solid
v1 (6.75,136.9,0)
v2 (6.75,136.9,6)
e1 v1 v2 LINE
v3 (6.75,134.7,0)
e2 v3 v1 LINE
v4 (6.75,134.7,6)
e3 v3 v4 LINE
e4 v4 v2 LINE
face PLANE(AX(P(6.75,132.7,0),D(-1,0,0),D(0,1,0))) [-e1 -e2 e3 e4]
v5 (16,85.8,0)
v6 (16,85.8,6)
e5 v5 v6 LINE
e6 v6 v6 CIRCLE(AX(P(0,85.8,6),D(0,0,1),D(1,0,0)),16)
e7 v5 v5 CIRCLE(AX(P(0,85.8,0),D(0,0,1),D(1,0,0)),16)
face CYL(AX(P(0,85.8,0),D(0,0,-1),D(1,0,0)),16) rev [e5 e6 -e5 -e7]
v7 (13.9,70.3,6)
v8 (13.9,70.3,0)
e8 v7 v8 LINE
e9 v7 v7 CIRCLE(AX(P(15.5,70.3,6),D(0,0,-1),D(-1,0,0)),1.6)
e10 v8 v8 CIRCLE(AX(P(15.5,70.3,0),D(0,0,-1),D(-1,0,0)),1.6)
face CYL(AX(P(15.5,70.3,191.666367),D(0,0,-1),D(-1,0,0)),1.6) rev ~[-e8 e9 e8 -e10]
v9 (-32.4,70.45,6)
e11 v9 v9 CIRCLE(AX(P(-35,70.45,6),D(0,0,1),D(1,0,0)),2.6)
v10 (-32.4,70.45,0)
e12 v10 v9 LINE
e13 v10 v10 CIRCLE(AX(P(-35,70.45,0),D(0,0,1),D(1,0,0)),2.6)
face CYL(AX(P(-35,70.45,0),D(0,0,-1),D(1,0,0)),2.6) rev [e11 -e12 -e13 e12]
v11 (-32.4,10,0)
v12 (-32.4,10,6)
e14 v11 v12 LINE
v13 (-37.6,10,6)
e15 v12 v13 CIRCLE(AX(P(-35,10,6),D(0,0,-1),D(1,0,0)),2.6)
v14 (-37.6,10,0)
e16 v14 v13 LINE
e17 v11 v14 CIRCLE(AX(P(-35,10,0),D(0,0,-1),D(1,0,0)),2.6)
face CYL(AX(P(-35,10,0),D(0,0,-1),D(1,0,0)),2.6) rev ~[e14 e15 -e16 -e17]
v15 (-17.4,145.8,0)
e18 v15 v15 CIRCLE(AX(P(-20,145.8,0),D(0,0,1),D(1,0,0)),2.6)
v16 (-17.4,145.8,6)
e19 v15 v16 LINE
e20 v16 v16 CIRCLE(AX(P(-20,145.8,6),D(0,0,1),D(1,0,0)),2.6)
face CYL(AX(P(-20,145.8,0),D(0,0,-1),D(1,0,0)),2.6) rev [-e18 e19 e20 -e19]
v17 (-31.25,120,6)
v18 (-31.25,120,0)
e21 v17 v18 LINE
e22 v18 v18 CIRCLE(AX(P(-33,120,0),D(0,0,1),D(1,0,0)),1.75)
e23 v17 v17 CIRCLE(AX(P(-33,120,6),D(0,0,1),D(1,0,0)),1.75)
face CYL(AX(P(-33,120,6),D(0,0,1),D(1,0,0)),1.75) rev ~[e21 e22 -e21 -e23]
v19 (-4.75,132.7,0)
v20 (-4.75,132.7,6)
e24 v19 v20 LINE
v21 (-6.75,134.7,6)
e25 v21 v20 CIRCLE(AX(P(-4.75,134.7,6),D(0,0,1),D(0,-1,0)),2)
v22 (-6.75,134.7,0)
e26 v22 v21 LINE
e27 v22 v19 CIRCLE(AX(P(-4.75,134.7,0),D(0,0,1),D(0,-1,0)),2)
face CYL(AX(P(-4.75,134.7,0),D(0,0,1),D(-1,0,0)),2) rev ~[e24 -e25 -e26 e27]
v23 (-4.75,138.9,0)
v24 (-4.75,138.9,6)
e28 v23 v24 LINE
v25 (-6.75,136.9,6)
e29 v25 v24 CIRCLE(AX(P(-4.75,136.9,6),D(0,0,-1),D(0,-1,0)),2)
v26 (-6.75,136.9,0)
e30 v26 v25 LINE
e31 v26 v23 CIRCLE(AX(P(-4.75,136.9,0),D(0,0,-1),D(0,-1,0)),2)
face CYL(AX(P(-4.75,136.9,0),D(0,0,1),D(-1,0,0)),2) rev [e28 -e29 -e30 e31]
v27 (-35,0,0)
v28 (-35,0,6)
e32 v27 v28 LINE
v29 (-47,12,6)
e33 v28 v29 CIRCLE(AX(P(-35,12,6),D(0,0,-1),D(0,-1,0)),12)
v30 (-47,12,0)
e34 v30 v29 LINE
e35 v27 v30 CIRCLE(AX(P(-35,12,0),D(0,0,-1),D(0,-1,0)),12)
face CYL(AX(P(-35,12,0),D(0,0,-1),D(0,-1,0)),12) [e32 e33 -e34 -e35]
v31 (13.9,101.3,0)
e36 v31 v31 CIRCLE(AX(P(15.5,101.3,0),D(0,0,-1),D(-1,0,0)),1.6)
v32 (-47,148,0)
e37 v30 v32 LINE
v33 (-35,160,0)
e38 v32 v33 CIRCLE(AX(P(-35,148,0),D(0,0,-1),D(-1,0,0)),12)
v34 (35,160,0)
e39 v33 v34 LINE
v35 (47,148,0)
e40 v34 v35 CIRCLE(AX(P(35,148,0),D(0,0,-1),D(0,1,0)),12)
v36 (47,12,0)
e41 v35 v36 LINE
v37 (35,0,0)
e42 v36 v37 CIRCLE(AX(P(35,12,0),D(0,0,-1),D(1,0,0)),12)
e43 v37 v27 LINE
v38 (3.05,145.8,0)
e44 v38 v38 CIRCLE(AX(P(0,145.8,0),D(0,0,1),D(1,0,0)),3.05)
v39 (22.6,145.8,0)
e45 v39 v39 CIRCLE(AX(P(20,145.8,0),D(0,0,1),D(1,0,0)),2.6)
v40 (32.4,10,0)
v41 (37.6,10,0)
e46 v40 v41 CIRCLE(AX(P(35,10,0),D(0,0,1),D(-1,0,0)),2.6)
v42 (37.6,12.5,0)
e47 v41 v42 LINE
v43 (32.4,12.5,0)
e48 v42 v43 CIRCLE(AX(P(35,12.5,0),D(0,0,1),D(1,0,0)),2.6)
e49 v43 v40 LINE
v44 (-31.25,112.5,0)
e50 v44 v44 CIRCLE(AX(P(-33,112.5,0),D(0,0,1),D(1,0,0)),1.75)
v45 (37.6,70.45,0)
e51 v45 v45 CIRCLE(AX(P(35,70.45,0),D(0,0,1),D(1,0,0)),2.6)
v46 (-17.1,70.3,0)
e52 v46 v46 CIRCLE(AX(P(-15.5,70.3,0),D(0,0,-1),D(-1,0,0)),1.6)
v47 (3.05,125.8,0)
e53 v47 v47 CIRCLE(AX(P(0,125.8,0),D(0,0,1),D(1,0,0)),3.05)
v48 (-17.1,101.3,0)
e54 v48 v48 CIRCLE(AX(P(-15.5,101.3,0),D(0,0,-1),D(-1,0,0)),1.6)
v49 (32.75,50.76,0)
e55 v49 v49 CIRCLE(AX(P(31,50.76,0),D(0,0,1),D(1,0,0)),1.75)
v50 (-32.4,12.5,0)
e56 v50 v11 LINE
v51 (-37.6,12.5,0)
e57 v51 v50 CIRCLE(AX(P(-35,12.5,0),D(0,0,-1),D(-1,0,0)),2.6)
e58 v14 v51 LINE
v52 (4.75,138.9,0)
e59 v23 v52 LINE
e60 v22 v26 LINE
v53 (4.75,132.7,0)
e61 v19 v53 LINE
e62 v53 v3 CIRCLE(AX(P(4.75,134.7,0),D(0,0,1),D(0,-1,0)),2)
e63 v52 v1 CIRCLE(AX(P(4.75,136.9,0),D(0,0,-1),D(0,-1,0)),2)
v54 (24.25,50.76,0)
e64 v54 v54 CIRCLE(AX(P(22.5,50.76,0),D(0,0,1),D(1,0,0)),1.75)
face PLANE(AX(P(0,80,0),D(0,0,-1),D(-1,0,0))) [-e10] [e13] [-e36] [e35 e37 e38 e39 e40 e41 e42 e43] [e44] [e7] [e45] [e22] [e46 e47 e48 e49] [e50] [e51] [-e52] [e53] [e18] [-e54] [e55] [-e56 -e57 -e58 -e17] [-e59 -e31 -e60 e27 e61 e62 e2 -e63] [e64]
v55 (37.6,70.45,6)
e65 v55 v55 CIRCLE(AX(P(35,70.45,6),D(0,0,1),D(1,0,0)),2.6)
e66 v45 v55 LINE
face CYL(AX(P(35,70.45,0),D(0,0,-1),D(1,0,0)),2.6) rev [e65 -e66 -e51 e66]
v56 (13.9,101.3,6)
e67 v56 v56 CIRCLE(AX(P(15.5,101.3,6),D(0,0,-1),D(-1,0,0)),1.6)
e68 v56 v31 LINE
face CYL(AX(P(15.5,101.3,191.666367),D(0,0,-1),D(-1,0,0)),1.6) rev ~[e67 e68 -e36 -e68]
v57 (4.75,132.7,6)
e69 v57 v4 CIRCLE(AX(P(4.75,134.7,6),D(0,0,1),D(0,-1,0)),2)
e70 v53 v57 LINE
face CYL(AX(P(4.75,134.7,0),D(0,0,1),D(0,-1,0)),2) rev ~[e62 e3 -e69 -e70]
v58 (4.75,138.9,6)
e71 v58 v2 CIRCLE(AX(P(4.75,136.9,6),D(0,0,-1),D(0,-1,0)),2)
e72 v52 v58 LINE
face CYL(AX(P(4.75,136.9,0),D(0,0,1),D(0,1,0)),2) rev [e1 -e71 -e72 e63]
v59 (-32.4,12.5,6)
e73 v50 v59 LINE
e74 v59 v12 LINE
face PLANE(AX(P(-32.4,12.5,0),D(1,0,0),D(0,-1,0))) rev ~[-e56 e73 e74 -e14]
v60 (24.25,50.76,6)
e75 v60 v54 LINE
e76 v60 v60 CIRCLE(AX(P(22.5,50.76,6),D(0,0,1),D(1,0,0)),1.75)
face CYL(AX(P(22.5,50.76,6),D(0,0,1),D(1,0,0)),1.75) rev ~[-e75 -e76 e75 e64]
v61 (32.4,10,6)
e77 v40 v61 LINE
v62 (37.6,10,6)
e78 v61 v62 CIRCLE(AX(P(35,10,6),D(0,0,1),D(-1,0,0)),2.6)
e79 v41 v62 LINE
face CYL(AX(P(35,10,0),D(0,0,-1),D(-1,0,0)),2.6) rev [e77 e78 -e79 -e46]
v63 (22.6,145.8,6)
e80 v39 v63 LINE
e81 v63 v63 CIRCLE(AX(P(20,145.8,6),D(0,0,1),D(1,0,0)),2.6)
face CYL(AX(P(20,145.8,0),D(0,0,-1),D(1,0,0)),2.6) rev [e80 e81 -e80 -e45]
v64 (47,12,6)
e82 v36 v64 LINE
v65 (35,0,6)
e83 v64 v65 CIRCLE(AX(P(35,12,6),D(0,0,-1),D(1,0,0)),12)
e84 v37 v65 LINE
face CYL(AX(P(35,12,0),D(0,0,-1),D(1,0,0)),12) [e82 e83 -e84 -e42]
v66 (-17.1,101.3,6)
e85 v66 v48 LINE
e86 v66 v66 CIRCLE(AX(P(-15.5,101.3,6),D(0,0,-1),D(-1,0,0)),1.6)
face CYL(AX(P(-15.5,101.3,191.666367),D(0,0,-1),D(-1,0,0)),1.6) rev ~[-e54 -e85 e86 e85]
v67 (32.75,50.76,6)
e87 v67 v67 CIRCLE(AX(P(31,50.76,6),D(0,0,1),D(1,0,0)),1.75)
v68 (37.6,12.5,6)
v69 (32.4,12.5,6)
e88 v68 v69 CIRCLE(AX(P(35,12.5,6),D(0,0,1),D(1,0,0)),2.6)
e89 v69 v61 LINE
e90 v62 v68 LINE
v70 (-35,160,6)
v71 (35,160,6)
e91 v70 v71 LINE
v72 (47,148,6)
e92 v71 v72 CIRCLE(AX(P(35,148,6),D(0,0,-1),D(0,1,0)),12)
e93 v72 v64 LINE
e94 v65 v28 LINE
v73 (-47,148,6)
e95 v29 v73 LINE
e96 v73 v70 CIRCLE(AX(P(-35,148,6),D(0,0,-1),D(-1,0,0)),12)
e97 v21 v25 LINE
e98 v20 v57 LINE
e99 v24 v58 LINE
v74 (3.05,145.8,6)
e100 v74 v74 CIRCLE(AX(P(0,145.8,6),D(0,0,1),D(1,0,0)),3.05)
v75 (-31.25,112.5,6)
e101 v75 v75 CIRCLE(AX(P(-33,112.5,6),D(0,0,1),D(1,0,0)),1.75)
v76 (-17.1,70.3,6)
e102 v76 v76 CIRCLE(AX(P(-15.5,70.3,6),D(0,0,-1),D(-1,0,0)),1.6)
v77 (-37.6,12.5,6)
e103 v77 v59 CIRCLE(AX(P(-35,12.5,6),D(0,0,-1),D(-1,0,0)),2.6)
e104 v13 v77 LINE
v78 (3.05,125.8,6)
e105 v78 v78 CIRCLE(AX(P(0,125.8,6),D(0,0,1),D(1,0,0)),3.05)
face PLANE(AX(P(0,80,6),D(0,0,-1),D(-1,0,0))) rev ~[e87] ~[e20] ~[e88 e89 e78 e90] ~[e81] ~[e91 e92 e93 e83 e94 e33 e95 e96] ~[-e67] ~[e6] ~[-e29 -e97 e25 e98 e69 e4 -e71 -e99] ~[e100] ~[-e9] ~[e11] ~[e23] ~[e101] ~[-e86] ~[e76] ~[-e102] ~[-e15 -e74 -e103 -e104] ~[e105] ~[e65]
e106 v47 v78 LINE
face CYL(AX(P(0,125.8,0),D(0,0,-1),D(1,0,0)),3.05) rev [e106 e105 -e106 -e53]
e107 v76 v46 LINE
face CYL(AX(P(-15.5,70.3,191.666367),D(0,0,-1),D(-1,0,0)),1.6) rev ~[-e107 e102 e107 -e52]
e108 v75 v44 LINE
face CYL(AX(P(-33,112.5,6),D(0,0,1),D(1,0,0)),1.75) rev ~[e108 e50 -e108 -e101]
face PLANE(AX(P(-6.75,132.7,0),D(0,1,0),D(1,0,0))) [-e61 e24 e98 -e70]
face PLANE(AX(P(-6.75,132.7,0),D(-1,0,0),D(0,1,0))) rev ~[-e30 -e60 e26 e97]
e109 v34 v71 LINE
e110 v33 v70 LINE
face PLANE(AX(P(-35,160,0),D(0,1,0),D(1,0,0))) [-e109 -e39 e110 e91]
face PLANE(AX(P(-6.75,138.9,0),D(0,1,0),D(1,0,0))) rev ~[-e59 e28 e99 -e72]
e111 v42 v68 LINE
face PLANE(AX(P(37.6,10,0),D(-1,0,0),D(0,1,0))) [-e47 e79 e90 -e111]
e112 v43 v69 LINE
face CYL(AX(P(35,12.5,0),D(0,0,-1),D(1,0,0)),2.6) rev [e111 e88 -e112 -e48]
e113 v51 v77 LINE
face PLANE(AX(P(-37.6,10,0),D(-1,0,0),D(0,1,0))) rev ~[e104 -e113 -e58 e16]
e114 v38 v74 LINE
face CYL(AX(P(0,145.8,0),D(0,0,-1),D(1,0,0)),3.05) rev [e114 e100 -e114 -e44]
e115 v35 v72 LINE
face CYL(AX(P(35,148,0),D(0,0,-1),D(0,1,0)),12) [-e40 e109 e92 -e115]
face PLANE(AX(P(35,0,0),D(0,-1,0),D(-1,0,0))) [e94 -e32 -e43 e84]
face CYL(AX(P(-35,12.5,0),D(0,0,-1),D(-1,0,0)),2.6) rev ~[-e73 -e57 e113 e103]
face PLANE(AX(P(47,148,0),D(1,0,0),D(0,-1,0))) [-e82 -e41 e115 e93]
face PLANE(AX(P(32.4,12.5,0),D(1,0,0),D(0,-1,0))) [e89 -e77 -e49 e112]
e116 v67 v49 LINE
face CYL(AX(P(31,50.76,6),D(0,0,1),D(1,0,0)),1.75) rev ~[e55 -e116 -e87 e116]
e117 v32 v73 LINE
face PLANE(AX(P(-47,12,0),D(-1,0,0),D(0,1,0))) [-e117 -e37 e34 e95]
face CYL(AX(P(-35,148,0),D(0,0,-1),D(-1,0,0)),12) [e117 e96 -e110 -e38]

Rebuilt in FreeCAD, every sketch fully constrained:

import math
import FreeCAD as App
import Part
import Sketcher

V = App.Vector
Q = App.Units.Quantity


def edges_at(feature, points):
    """Names of the edges that pass closest to the given points."""
    edges = feature.Shape.Edges
    near = lambda p: min(range(len(edges)), key=lambda i: edges[i].distToShape(Part.Vertex(*p))[0])
    return sorted({f"Edge{near(p) + 1}" for p in points})


def add_polygon(sketch, points):
    """Adds a closed chain of lines whose ends are joined by coincident constraints."""
    first, n = sketch.GeometryCount, len(points)
    for a, b in zip(points, points[1:] + points[:1]):
        sketch.addGeometry(Part.LineSegment(App.Vector(*a, 0), App.Vector(*b, 0)), False)
    for i in range(n):
        sketch.addConstraint(Sketcher.Constraint("Coincident", first + i, 2, first + (i + 1) % n, 1))

doc = App.newDocument("Part")
body = doc.addObject("PartDesign::Body", "Body")

sketch1 = doc.addObject("Sketcher::SketchObject", "Sketch")
body.addObject(sketch1)
sketch1.AttachmentSupport = (doc.XY_Plane, [""])
sketch1.MapMode = "FlatFace"
sketch1.addGeometry(Part.LineSegment(V(35, 160, 0), V(-35, 160, 0)), False)
sketch1.addGeometry(Part.ArcOfCircle(Part.Circle(V(-35, 148, 0), V(0, 0, 1), 12), math.radians(90), math.radians(180)), False)
sketch1.addGeometry(Part.LineSegment(V(-47, 148, 0), V(-47, 12, 0)), False)
sketch1.addGeometry(Part.ArcOfCircle(Part.Circle(V(-35, 12, 0), V(0, 0, 1), 12), math.radians(-180), math.radians(-90)), False)
sketch1.addGeometry(Part.LineSegment(V(-35, 0, 0), V(35, 0, 0)), False)
sketch1.addGeometry(Part.ArcOfCircle(Part.Circle(V(35, 12, 0), V(0, 0, 1), 12), math.radians(-90), math.radians(0)), False)
sketch1.addGeometry(Part.LineSegment(V(47, 12, 0), V(47, 148, 0)), False)
sketch1.addGeometry(Part.ArcOfCircle(Part.Circle(V(35, 148, 0), V(0, 0, 1), 12), math.radians(0), math.radians(90)), False)
sketch1.addGeometry(Part.ArcOfCircle(Part.Circle(V(35, 12.5, 0), V(0, 0, 1), 2.6), math.radians(0), math.radians(180)), False)
sketch1.addGeometry(Part.LineSegment(V(37.6, 12.5, 0), V(37.6, 10, 0)), False)
sketch1.addGeometry(Part.ArcOfCircle(Part.Circle(V(35, 10, 0), V(0, 0, 1), 2.6), math.radians(180), math.radians(360)), False)
sketch1.addGeometry(Part.LineSegment(V(32.4, 10, 0), V(32.4, 12.5, 0)), False)
sketch1.addGeometry(Part.Circle(V(35, 70.5, 0), V(0, 0, 1), 2.6), False)
sketch1.addGeometry(Part.LineSegment(V(-32.4, 12.5, 0), V(-32.4, 10, 0)), False)
sketch1.addGeometry(Part.ArcOfCircle(Part.Circle(V(-35, 10, 0), V(0, 0, 1), 2.6), math.radians(180), math.radians(360)), False)
sketch1.addGeometry(Part.LineSegment(V(-37.6, 10, 0), V(-37.6, 12.5, 0)), False)
sketch1.addGeometry(Part.ArcOfCircle(Part.Circle(V(-35, 12.5, 0), V(0, 0, 1), 2.6), math.radians(0), math.radians(180)), False)
sketch1.addGeometry(Part.Circle(V(-35, 70.5, 0), V(0, 0, 1), 2.6), False)
sketch1.addGeometry(Part.Circle(V(20, 145.8, 0), V(0, 0, 1), 2.6), False)
sketch1.addGeometry(Part.Circle(V(0, 85.8, 0), V(0, 0, 1), 16), False)
sketch1.addGeometry(Part.Circle(V(0, 125.8, 0), V(0, 0, 1), 3), False)
add_polygon(sketch1, [(-6.8, 132.7), (-6.8, 138.9), (6.8, 138.9), (6.8, 132.7)])
sketch1.addGeometry(Part.Circle(V(0, 145.8, 0), V(0, 0, 1), 3), False)
sketch1.addGeometry(Part.Circle(V(-20, 145.8, 0), V(0, 0, 1), 2.6), False)
sketch1.addConstraint(Sketcher.Constraint("Tangent", 0, 2, 1, 1))
sketch1.addConstraint(Sketcher.Constraint("Tangent", 1, 2, 2, 1))
sketch1.addConstraint(Sketcher.Constraint("Tangent", 2, 2, 3, 1))
sketch1.addConstraint(Sketcher.Constraint("Tangent", 3, 2, 4, 1))
sketch1.addConstraint(Sketcher.Constraint("Tangent", 4, 2, 5, 1))
sketch1.addConstraint(Sketcher.Constraint("Tangent", 5, 2, 6, 1))
sketch1.addConstraint(Sketcher.Constraint("Tangent", 6, 2, 7, 1))
sketch1.addConstraint(Sketcher.Constraint("Tangent", 7, 2, 0, 1))
sketch1.addConstraint(Sketcher.Constraint("Tangent", 8, 1, 9, 1))
sketch1.addConstraint(Sketcher.Constraint("Tangent", 9, 2, 10, 2))
sketch1.addConstraint(Sketcher.Constraint("Tangent", 10, 1, 11, 1))
sketch1.addConstraint(Sketcher.Constraint("Tangent", 11, 2, 8, 2))
sketch1.addConstraint(Sketcher.Constraint("Tangent", 13, 2, 14, 2))
sketch1.addConstraint(Sketcher.Constraint("Tangent", 14, 1, 15, 1))
sketch1.addConstraint(Sketcher.Constraint("Tangent", 15, 2, 16, 2))
sketch1.addConstraint(Sketcher.Constraint("Tangent", 16, 1, 13, 1))
sketch1.addConstraint(Sketcher.Constraint("Horizontal", 0))
sketch1.addConstraint(Sketcher.Constraint("Vertical", 2))
sketch1.addConstraint(Sketcher.Constraint("Horizontal", 4))
sketch1.addConstraint(Sketcher.Constraint("Vertical", 6))
sketch1.addConstraint(Sketcher.Constraint("Vertical", 9))
sketch1.addConstraint(Sketcher.Constraint("Vertical", 11))
sketch1.addConstraint(Sketcher.Constraint("Vertical", 13))
sketch1.addConstraint(Sketcher.Constraint("Vertical", 15))
sketch1.addConstraint(Sketcher.Constraint("Vertical", 21))
sketch1.addConstraint(Sketcher.Constraint("Horizontal", 22))
sketch1.addConstraint(Sketcher.Constraint("Vertical", 23))
sketch1.addConstraint(Sketcher.Constraint("Horizontal", 24))
sketch1.addConstraint(Sketcher.Constraint("Equal", 1, 3))
sketch1.addConstraint(Sketcher.Constraint("Equal", 3, 5))
sketch1.addConstraint(Sketcher.Constraint("Equal", 5, 7))
sketch1.addConstraint(Sketcher.Constraint("Equal", 10, 12))
sketch1.addConstraint(Sketcher.Constraint("Equal", 12, 14))
sketch1.addConstraint(Sketcher.Constraint("Equal", 16, 17))
sketch1.addConstraint(Sketcher.Constraint("Equal", 17, 18))
sketch1.addConstraint(Sketcher.Constraint("Equal", 20, 25))
sketch1.addConstraint(Sketcher.Constraint("Equal", 18, 26))
sketch1.addConstraint(Sketcher.Constraint("Symmetric", 3, 2, 4, 2, -1, 1))
sketch1.addConstraint(Sketcher.Constraint("Symmetric", 10, 3, 14, 3, -2))
sketch1.addConstraint(Sketcher.Constraint("Symmetric", 12, 3, 17, 3, -2))
sketch1.addConstraint(Sketcher.Constraint("Symmetric", 18, 3, 26, 3, -2))
sketch1.addConstraint(Sketcher.Constraint("PointOnObject", 19, 3, -2))
sketch1.addConstraint(Sketcher.Constraint("PointOnObject", 20, 3, -2))
sketch1.addConstraint(Sketcher.Constraint("PointOnObject", 25, 3, -2))
sketch1.addConstraint(Sketcher.Constraint("Horizontal", 8, 3, 16, 3))
sketch1.addConstraint(Sketcher.Constraint("Horizontal", 18, 3, 25, 3))
sketch1.addConstraint(Sketcher.Constraint("Vertical", 7, 3, 8, 3))
sketch1.addConstraint(Sketcher.Constraint("Vertical", 10, 3, 12, 3))
sketch1.addConstraint(Sketcher.Constraint("Diameter", 19, Q("32 mm")))
sketch1.addConstraint(Sketcher.Constraint("Radius", 1, Q("12 mm")))
sketch1.addConstraint(Sketcher.Constraint("Diameter", 12, Q("5.2 mm")))
sketch1.addConstraint(Sketcher.Constraint("Diameter", 20, Q("6.1 mm")))
sketch1.addConstraint(Sketcher.Constraint("DistanceX", 0, 2, 0, 1, Q("70 mm")))
sketch1.addConstraint(Sketcher.Constraint("DistanceY", 2, 2, 2, 1, Q("136 mm")))
sketch1.addConstraint(Sketcher.Constraint("DistanceX", 22, 1, 22, 2, Q("13.5 mm")))
sketch1.addConstraint(Sketcher.Constraint("DistanceY", 9, 2, 9, 1, Q("2.5 mm")))
sketch1.addConstraint(Sketcher.Constraint("DistanceY", 21, 1, 21, 2, Q("6.2 mm")))
sketch1.addConstraint(Sketcher.Constraint("DistanceY", -1, 1, 10, 3, Q("10 mm")))
sketch1.addConstraint(Sketcher.Constraint("DistanceX", -1, 1, 18, 3, Q("20 mm")))
sketch1.addConstraint(Sketcher.Constraint("DistanceY", 19, 3, 18, 3, Q("60 mm")))
sketch1.addConstraint(Sketcher.Constraint("DistanceY", 20, 3, 18, 3, Q("20 mm")))
sketch1.addConstraint(Sketcher.Constraint("DistanceY", -1, 1, 18, 3, Q("145.8 mm")))
sketch1.addConstraint(Sketcher.Constraint("DistanceY", -1, 1, 21, 2, Q("138.9 mm")))
sketch1.addConstraint(Sketcher.Constraint("DistanceY", -1, 1, 12, 3, Q("70.45 mm")))
sketch1.addConstraint(Sketcher.Constraint("DistanceX", 21, 2, -1, 1, Q("6.75 mm")))
pad1 = doc.addObject("PartDesign::Pad", "Pad")
body.addObject(pad1)
pad1.Profile = sketch1
pad1.Length = 6

sketch2 = doc.addObject("Sketcher::SketchObject", "Sketch001")
body.addObject(sketch2)
sketch2.AttachmentSupport = (doc.XY_Plane, [""])
sketch2.MapMode = "FlatFace"
sketch2.AttachmentOffset = App.Placement(V(0, 0, 6), App.Rotation())
sketch2.addGeometry(Part.Circle(V(-33, 120, 0), V(0, 0, 1), 1.8), False)
sketch2.addGeometry(Part.Circle(V(-33, 112.5, 0), V(0, 0, 1), 1.8), False)
sketch2.addConstraint(Sketcher.Constraint("Equal", 0, 1))
sketch2.addConstraint(Sketcher.Constraint("Vertical", 0, 3, 1, 3))
sketch2.addConstraint(Sketcher.Constraint("Diameter", 0, Q("3.5 mm")))
sketch2.addConstraint(Sketcher.Constraint("DistanceX", 0, 3, -1, 1, Q("33 mm")))
sketch2.addConstraint(Sketcher.Constraint("DistanceY", -1, 1, 0, 3, Q("120 mm")))
sketch2.addConstraint(Sketcher.Constraint("DistanceY", -1, 1, 1, 3, Q("112.5 mm")))
pocket1 = doc.addObject("PartDesign::Pocket", "Pocket")
body.addObject(pocket1)
pocket1.Profile = sketch2
pocket1.Type = "ThroughAll"

sketch3 = doc.addObject("Sketcher::SketchObject", "Sketch002")
body.addObject(sketch3)
sketch3.AttachmentSupport = (doc.XY_Plane, [""])
sketch3.MapMode = "FlatFace"
sketch3.AttachmentOffset = App.Placement(V(0, 0, 6), App.Rotation())
sketch3.addGeometry(Part.Circle(V(22.5, 50.8, 0), V(0, 0, 1), 1.8), False)
sketch3.addGeometry(Part.Circle(V(31, 50.8, 0), V(0, 0, 1), 1.8), False)
sketch3.addConstraint(Sketcher.Constraint("Equal", 0, 1))
sketch3.addConstraint(Sketcher.Constraint("Horizontal", 0, 3, 1, 3))
sketch3.addConstraint(Sketcher.Constraint("Diameter", 0, Q("3.5 mm")))
sketch3.addConstraint(Sketcher.Constraint("DistanceX", -1, 1, 1, 3, Q("31 mm")))
sketch3.addConstraint(Sketcher.Constraint("DistanceX", -1, 1, 0, 3, Q("22.5 mm")))
sketch3.addConstraint(Sketcher.Constraint("DistanceY", -1, 1, 0, 3, Q("50.76 mm")))
pocket2 = doc.addObject("PartDesign::Pocket", "Pocket001")
body.addObject(pocket2)
pocket2.Profile = sketch3
pocket2.Length = 10
doc.recompute()

fillet = doc.addObject("PartDesign::Fillet", "Fillet")
body.addObject(fillet)
fillet.Base = (pocket2, edges_at(pocket2, [
    (6.75, 138.9, 3),
    (-6.75, 138.9, 3),
    (-6.75, 132.7, 3),
    (6.75, 132.7, 3),
]))
fillet.Radius = 2

sketch4 = doc.addObject("Sketcher::SketchObject", "Sketch003")
body.addObject(sketch4)
sketch4.AttachmentSupport = (doc.XY_Plane, [""])
sketch4.MapMode = "FlatFace"
sketch4.AttachmentOffset = App.Placement(V(0, 0, 6), App.Rotation())
sketch4.addGeometry(Part.Circle(V(-15.5, 101.3, 0), V(0, 0, 1), 1.6), False)
sketch4.addGeometry(Part.Circle(V(-15.5, 70.3, 0), V(0, 0, 1), 1.6), False)
sketch4.addGeometry(Part.Circle(V(15.5, 70.3, 0), V(0, 0, 1), 1.6), False)
sketch4.addGeometry(Part.Circle(V(15.5, 101.3, 0), V(0, 0, 1), 1.6), False)
sketch4.addConstraint(Sketcher.Constraint("Equal", 0, 1))
sketch4.addConstraint(Sketcher.Constraint("Equal", 1, 2))
sketch4.addConstraint(Sketcher.Constraint("Equal", 2, 3))
sketch4.addConstraint(Sketcher.Constraint("Symmetric", 1, 3, 2, 3, -2))
sketch4.addConstraint(Sketcher.Constraint("Symmetric", 0, 3, 3, 3, -2))
sketch4.addConstraint(Sketcher.Constraint("Vertical", 0, 3, 1, 3))
sketch4.addConstraint(Sketcher.Constraint("Diameter", 0, Q("3.2 mm")))
sketch4.addConstraint(Sketcher.Constraint("DistanceY", 1, 3, 0, 3, Q("31 mm")))
sketch4.addConstraint(Sketcher.Constraint("DistanceX", 1, 3, 2, 3, Q("31 mm")))
sketch4.addConstraint(Sketcher.Constraint("DistanceY", -1, 1, 0, 3, Q("101.3 mm")))
doc.recompute()
hole = doc.addObject("PartDesign::Hole", "Hole")
body.addObject(hole)
hole.Profile = sketch4
hole.ThreadType = "None"
hole.Diameter = 3.2
hole.DepthType = "ThroughAll"

doc.recompute()
